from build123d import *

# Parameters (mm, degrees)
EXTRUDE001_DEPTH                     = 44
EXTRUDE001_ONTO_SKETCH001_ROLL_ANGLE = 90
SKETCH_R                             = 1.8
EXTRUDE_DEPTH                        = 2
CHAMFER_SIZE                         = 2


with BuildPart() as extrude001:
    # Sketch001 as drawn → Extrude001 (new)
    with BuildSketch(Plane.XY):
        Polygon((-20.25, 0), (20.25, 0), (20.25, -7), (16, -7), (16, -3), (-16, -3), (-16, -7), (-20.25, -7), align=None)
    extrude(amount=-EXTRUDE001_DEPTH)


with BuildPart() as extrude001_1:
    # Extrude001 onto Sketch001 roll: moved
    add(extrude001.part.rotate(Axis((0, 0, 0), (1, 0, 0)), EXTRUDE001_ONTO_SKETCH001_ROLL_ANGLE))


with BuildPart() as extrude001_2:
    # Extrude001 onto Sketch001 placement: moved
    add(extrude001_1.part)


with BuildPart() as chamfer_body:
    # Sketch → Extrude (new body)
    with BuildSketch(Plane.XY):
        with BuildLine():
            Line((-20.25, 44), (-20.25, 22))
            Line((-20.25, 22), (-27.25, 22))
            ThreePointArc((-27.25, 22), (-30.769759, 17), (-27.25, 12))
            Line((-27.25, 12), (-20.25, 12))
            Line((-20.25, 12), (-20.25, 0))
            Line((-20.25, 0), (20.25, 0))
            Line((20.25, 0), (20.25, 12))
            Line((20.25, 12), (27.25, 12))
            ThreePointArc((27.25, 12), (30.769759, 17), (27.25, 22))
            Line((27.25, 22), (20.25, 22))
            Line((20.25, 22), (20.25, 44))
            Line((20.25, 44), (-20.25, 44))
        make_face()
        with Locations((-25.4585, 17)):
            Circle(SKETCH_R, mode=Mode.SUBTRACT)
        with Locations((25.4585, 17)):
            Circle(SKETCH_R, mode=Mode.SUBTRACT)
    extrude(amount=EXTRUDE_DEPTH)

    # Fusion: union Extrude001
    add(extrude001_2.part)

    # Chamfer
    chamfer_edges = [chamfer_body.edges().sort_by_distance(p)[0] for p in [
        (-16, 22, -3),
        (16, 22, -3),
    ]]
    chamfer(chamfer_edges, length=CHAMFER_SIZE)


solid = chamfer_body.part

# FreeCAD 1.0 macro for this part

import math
import FreeCAD as App
import Part
import Sketcher
from FreeCAD import Vector


def edges_at(feature, points):
    """Names of the edges that pass closest to the given points."""
    edges = feature.Shape.Edges
    near = lambda p: min(range(len(edges)), key=lambda i: edges[i].distToShape(Part.Vertex(*p))[0])
    return sorted({f"Edge{near(p) + 1}" for p in points})


def add_polygon(sketch, points):
    """Adds a closed chain of lines whose ends are joined by coincident constraints."""
    first, n = sketch.GeometryCount, len(points)
    for a, b in zip(points, points[1:] + points[:1]):
        sketch.addGeometry(Part.LineSegment(App.Vector(*a, 0), App.Vector(*b, 0)), False)
    for i in range(n):
        sketch.addConstraint(Sketcher.Constraint("Coincident", first + i, 2, first + (i + 1) % n, 1))

doc = App.newDocument("Part")
params = doc.addObject("Spreadsheet::Sheet", "Params")
for row, (alias, value) in enumerate([
    ("sketch1_width", "32 mm"),
    ("sketch1_height", "7 mm"),
    ("sketch1_height2", "4 mm"),
    ("sketch1_width2", "40.5 mm"),
    ("pad1_length", "44 mm"),
    ("sketch2_diameter", "3.6 mm"),
    ("sketch2_width", "7 mm"),
    ("sketch2_height", "22 mm"),
    ("sketch2_height2", "12 mm"),
    ("sketch2_width2", "40.5 mm"),
    ("pad2_length", "2 mm"),
    ("chamfer_size", "2 mm"),
], start=1):
    params.set(f"A{row}", alias)
    params.set(f"B{row}", "=" + value)
    params.setAlias(f"B{row}", alias)

body = doc.addObject("PartDesign::Body", "Body")

sketch1 = body.newObject("Sketcher::SketchObject", "Sketch")
sketch1.AttachmentSupport = (doc.getObject("XY_Plane"), [""])
sketch1.MapMode = "FlatFace"
add_polygon(sketch1, [(20.2, 0), (-20.2, 0), (-20.2, -7), (-16, -7), (-16, -3), (16, -3), (16, -7), (20.2, -7)])
sketch1.addConstraint(Sketcher.Constraint("Horizontal", 0))
sketch1.addConstraint(Sketcher.Constraint("Vertical", 1))
sketch1.addConstraint(Sketcher.Constraint("Horizontal", 2))
sketch1.addConstraint(Sketcher.Constraint("Vertical", 3))
sketch1.addConstraint(Sketcher.Constraint("Horizontal", 4))
sketch1.addConstraint(Sketcher.Constraint("Vertical", 5))
sketch1.addConstraint(Sketcher.Constraint("Horizontal", 6))
sketch1.addConstraint(Sketcher.Constraint("Vertical", 7))
sketch1.addConstraint(Sketcher.Constraint("Symmetric", 0, 2, 7, 2, -1, 1))
sketch1.addConstraint(Sketcher.Constraint("Symmetric", 2, 2, 5, 2, -2))
sketch1.addConstraint(Sketcher.Constraint("DistanceX", 4, 1, 4, 2, 32.0))
sketch1.addConstraint(Sketcher.Constraint("DistanceY", 1, 2, 1, 1, 7.0))
sketch1.addConstraint(Sketcher.Constraint("DistanceY", 3, 1, 3, 2, 4.0))
sketch1.addConstraint(Sketcher.Constraint("DistanceX", 0, 2, 0, 1, 40.5))
sketch1.setExpression("Constraints[18]", "Params.sketch1_width")
sketch1.setExpression("Constraints[19]", "Params.sketch1_height")
sketch1.setExpression("Constraints[20]", "Params.sketch1_height2")
sketch1.setExpression("Constraints[21]", "Params.sketch1_width2")
pad1 = body.newObject("PartDesign::Pad", "Pad")
pad1.Profile = sketch1
pad1.setExpression("Length", "Params.pad1_length")
pad1.Reversed = True
body2 = doc.addObject("PartDesign::Body", "Body001")
doc.recompute()

body.Placement = App.Placement(Vector(0, 0, 0), App.Rotation(Vector(1, 0, 0), 90))
boolean = body2.newObject("PartDesign::Boolean", "Boolean")
boolean.Type = "Fuse"
boolean.addObjects([body])
body3 = doc.addObject("PartDesign::Body", "Body002")

sketch2 = body3.newObject("Sketcher::SketchObject", "Sketch001")
sketch2.AttachmentSupport = (doc.getObject("XY_Plane002"), [""])
sketch2.MapMode = "FlatFace"
sketch2.addGeometry(Part.LineSegment(Vector(-20.2, 44, 0), Vector(-20.2, 22, 0)), False)
sketch2.addGeometry(Part.LineSegment(Vector(-20.2, 22, 0), Vector(-27.2, 22, 0)), False)
sketch2.addGeometry(Part.ArcOfCircle(Part.Circle(Vector(-25.5, 17, 0), Vector(0, 0, 1), 5.3), math.radians(110), math.radians(250)), False)
sketch2.addGeometry(Part.LineSegment(Vector(-27.2, 12, 0), Vector(-20.2, 12, 0)), False)
sketch2.addGeometry(Part.LineSegment(Vector(-20.2, 12, 0), Vector(-20.2, 0, 0)), False)
sketch2.addGeometry(Part.LineSegment(Vector(-20.2, 0, 0), Vector(20.2, 0, 0)), False)
sketch2.addGeometry(Part.LineSegment(Vector(20.2, 0, 0), Vector(20.2, 12, 0)), False)
sketch2.addGeometry(Part.LineSegment(Vector(20.2, 12, 0), Vector(27.2, 12, 0)), False)
sketch2.addGeometry(Part.ArcOfCircle(Part.Circle(Vector(25.5, 17, 0), Vector(0, 0, 1), 5.3), math.radians(-70), math.radians(70)), False)
sketch2.addGeometry(Part.LineSegment(Vector(27.2, 22, 0), Vector(20.2, 22, 0)), False)
sketch2.addGeometry(Part.LineSegment(Vector(20.2, 22, 0), Vector(20.2, 44, 0)), False)
sketch2.addGeometry(Part.LineSegment(Vector(20.2, 44, 0), Vector(-20.2, 44, 0)), False)
sketch2.addGeometry(Part.Circle(Vector(-25.5, 17, 0), Vector(0, 0, 1), 1.8), False)
sketch2.addGeometry(Part.Circle(Vector(25.5, 17, 0), Vector(0, 0, 1), 1.8), False)
sketch2.addConstraint(Sketcher.Constraint("Coincident", 0, 2, 1, 1))
sketch2.addConstraint(Sketcher.Constraint("Coincident", 1, 2, 2, 1))
sketch2.addConstraint(Sketcher.Constraint("Coincident", 2, 2, 3, 1))
sketch2.addConstraint(Sketcher.Constraint("Coincident", 3, 2, 4, 1))
sketch2.addConstraint(Sketcher.Constraint("Coincident", 4, 2, 5, 1))
sketch2.addConstraint(Sketcher.Constraint("Coincident", 5, 2, 6, 1))
sketch2.addConstraint(Sketcher.Constraint("Coincident", 6, 2, 7, 1))
sketch2.addConstraint(Sketcher.Constraint("Coincident", 7, 2, 8, 1))
sketch2.addConstraint(Sketcher.Constraint("Coincident", 8, 2, 9, 1))
sketch2.addConstraint(Sketcher.Constraint("Coincident", 9, 2, 10, 1))
sketch2.addConstraint(Sketcher.Constraint("Coincident", 10, 2, 11, 1))
sketch2.addConstraint(Sketcher.Constraint("Coincident", 11, 2, 0, 1))
sketch2.addConstraint(Sketcher.Constraint("Vertical", 0))
sketch2.addConstraint(Sketcher.Constraint("Horizontal", 1))
sketch2.addConstraint(Sketcher.Constraint("Horizontal", 3))
sketch2.addConstraint(Sketcher.Constraint("Vertical", 4))
sketch2.addConstraint(Sketcher.Constraint("Horizontal", 5))
sketch2.addConstraint(Sketcher.Constraint("Vertical", 6))
sketch2.addConstraint(Sketcher.Constraint("Horizontal", 7))
sketch2.addConstraint(Sketcher.Constraint("Horizontal", 9))
sketch2.addConstraint(Sketcher.Constraint("Vertical", 10))
sketch2.addConstraint(Sketcher.Constraint("Horizontal", 11))
sketch2.addConstraint(Sketcher.Constraint("Coincident", 12, 3, 2, 3))
sketch2.addConstraint(Sketcher.Constraint("Coincident", 13, 3, 8, 3))
sketch2.addConstraint(Sketcher.Constraint("Equal", 2, 8))
sketch2.addConstraint(Sketcher.Constraint("Equal", 12, 13))
sketch2.addConstraint(Sketcher.Constraint("Symmetric", 4, 2, 5, 2, -1, 1))
sketch2.addConstraint(Sketcher.Constraint("Symmetric", 2, 3, 8, 3, -2))
sketch2.addConstraint(Sketcher.Constraint("Symmetric", 0, 2, 9, 2, -2))
sketch2.addConstraint(Sketcher.Constraint("Horizontal", 3, 2, 6, 2))
sketch2.addConstraint(Sketcher.Constraint("Vertical", 1, 2, 2, 2))
sketch2.addConstraint(Sketcher.Constraint("Vertical", 0, 2, 3, 2))
sketch2.addConstraint(Sketcher.Constraint("Diameter", 12, 3.6))
sketch2.addConstraint(Sketcher.Constraint("DistanceX", 1, 2, 1, 1, 7.0))
sketch2.addConstraint(Sketcher.Constraint("DistanceY", 0, 2, 0, 1, 22.0))
sketch2.addConstraint(Sketcher.Constraint("DistanceY", 4, 2, 4, 1, 12.0))
sketch2.addConstraint(Sketcher.Constraint("DistanceX", 5, 1, 5, 2, 40.5))
sketch2.addConstraint(Sketcher.Constraint("DistanceY", -1, 1, 2, 3, 17.0))
sketch2.addConstraint(Sketcher.Constraint("Radius", 2, 5.311259))
sketch2.setExpression("Constraints[32]", "Params.sketch2_diameter")
sketch2.setExpression("Constraints[33]", "Params.sketch2_width")
sketch2.setExpression("Constraints[34]", "Params.sketch2_height")
sketch2.setExpression("Constraints[35]", "Params.sketch2_height2")
sketch2.setExpression("Constraints[36]", "Params.sketch2_width2")
pad2 = body3.newObject("PartDesign::Pad", "Pad001")
pad2.Profile = sketch2
pad2.setExpression("Length", "Params.pad2_length")
doc.recompute()

boolean2 = body3.newObject("PartDesign::Boolean", "Boolean001")
boolean2.Type = "Fuse"
boolean2.addObjects([body2])
doc.recompute()

chamfer = body3.newObject("PartDesign::Chamfer", "Chamfer")
chamfer.Base = (boolean2, edges_at(boolean2, [(-16, 22, -3), (16, 22, -3)]))
chamfer.setExpression("Size", "Params.chamfer_size")

doc.recompute()
